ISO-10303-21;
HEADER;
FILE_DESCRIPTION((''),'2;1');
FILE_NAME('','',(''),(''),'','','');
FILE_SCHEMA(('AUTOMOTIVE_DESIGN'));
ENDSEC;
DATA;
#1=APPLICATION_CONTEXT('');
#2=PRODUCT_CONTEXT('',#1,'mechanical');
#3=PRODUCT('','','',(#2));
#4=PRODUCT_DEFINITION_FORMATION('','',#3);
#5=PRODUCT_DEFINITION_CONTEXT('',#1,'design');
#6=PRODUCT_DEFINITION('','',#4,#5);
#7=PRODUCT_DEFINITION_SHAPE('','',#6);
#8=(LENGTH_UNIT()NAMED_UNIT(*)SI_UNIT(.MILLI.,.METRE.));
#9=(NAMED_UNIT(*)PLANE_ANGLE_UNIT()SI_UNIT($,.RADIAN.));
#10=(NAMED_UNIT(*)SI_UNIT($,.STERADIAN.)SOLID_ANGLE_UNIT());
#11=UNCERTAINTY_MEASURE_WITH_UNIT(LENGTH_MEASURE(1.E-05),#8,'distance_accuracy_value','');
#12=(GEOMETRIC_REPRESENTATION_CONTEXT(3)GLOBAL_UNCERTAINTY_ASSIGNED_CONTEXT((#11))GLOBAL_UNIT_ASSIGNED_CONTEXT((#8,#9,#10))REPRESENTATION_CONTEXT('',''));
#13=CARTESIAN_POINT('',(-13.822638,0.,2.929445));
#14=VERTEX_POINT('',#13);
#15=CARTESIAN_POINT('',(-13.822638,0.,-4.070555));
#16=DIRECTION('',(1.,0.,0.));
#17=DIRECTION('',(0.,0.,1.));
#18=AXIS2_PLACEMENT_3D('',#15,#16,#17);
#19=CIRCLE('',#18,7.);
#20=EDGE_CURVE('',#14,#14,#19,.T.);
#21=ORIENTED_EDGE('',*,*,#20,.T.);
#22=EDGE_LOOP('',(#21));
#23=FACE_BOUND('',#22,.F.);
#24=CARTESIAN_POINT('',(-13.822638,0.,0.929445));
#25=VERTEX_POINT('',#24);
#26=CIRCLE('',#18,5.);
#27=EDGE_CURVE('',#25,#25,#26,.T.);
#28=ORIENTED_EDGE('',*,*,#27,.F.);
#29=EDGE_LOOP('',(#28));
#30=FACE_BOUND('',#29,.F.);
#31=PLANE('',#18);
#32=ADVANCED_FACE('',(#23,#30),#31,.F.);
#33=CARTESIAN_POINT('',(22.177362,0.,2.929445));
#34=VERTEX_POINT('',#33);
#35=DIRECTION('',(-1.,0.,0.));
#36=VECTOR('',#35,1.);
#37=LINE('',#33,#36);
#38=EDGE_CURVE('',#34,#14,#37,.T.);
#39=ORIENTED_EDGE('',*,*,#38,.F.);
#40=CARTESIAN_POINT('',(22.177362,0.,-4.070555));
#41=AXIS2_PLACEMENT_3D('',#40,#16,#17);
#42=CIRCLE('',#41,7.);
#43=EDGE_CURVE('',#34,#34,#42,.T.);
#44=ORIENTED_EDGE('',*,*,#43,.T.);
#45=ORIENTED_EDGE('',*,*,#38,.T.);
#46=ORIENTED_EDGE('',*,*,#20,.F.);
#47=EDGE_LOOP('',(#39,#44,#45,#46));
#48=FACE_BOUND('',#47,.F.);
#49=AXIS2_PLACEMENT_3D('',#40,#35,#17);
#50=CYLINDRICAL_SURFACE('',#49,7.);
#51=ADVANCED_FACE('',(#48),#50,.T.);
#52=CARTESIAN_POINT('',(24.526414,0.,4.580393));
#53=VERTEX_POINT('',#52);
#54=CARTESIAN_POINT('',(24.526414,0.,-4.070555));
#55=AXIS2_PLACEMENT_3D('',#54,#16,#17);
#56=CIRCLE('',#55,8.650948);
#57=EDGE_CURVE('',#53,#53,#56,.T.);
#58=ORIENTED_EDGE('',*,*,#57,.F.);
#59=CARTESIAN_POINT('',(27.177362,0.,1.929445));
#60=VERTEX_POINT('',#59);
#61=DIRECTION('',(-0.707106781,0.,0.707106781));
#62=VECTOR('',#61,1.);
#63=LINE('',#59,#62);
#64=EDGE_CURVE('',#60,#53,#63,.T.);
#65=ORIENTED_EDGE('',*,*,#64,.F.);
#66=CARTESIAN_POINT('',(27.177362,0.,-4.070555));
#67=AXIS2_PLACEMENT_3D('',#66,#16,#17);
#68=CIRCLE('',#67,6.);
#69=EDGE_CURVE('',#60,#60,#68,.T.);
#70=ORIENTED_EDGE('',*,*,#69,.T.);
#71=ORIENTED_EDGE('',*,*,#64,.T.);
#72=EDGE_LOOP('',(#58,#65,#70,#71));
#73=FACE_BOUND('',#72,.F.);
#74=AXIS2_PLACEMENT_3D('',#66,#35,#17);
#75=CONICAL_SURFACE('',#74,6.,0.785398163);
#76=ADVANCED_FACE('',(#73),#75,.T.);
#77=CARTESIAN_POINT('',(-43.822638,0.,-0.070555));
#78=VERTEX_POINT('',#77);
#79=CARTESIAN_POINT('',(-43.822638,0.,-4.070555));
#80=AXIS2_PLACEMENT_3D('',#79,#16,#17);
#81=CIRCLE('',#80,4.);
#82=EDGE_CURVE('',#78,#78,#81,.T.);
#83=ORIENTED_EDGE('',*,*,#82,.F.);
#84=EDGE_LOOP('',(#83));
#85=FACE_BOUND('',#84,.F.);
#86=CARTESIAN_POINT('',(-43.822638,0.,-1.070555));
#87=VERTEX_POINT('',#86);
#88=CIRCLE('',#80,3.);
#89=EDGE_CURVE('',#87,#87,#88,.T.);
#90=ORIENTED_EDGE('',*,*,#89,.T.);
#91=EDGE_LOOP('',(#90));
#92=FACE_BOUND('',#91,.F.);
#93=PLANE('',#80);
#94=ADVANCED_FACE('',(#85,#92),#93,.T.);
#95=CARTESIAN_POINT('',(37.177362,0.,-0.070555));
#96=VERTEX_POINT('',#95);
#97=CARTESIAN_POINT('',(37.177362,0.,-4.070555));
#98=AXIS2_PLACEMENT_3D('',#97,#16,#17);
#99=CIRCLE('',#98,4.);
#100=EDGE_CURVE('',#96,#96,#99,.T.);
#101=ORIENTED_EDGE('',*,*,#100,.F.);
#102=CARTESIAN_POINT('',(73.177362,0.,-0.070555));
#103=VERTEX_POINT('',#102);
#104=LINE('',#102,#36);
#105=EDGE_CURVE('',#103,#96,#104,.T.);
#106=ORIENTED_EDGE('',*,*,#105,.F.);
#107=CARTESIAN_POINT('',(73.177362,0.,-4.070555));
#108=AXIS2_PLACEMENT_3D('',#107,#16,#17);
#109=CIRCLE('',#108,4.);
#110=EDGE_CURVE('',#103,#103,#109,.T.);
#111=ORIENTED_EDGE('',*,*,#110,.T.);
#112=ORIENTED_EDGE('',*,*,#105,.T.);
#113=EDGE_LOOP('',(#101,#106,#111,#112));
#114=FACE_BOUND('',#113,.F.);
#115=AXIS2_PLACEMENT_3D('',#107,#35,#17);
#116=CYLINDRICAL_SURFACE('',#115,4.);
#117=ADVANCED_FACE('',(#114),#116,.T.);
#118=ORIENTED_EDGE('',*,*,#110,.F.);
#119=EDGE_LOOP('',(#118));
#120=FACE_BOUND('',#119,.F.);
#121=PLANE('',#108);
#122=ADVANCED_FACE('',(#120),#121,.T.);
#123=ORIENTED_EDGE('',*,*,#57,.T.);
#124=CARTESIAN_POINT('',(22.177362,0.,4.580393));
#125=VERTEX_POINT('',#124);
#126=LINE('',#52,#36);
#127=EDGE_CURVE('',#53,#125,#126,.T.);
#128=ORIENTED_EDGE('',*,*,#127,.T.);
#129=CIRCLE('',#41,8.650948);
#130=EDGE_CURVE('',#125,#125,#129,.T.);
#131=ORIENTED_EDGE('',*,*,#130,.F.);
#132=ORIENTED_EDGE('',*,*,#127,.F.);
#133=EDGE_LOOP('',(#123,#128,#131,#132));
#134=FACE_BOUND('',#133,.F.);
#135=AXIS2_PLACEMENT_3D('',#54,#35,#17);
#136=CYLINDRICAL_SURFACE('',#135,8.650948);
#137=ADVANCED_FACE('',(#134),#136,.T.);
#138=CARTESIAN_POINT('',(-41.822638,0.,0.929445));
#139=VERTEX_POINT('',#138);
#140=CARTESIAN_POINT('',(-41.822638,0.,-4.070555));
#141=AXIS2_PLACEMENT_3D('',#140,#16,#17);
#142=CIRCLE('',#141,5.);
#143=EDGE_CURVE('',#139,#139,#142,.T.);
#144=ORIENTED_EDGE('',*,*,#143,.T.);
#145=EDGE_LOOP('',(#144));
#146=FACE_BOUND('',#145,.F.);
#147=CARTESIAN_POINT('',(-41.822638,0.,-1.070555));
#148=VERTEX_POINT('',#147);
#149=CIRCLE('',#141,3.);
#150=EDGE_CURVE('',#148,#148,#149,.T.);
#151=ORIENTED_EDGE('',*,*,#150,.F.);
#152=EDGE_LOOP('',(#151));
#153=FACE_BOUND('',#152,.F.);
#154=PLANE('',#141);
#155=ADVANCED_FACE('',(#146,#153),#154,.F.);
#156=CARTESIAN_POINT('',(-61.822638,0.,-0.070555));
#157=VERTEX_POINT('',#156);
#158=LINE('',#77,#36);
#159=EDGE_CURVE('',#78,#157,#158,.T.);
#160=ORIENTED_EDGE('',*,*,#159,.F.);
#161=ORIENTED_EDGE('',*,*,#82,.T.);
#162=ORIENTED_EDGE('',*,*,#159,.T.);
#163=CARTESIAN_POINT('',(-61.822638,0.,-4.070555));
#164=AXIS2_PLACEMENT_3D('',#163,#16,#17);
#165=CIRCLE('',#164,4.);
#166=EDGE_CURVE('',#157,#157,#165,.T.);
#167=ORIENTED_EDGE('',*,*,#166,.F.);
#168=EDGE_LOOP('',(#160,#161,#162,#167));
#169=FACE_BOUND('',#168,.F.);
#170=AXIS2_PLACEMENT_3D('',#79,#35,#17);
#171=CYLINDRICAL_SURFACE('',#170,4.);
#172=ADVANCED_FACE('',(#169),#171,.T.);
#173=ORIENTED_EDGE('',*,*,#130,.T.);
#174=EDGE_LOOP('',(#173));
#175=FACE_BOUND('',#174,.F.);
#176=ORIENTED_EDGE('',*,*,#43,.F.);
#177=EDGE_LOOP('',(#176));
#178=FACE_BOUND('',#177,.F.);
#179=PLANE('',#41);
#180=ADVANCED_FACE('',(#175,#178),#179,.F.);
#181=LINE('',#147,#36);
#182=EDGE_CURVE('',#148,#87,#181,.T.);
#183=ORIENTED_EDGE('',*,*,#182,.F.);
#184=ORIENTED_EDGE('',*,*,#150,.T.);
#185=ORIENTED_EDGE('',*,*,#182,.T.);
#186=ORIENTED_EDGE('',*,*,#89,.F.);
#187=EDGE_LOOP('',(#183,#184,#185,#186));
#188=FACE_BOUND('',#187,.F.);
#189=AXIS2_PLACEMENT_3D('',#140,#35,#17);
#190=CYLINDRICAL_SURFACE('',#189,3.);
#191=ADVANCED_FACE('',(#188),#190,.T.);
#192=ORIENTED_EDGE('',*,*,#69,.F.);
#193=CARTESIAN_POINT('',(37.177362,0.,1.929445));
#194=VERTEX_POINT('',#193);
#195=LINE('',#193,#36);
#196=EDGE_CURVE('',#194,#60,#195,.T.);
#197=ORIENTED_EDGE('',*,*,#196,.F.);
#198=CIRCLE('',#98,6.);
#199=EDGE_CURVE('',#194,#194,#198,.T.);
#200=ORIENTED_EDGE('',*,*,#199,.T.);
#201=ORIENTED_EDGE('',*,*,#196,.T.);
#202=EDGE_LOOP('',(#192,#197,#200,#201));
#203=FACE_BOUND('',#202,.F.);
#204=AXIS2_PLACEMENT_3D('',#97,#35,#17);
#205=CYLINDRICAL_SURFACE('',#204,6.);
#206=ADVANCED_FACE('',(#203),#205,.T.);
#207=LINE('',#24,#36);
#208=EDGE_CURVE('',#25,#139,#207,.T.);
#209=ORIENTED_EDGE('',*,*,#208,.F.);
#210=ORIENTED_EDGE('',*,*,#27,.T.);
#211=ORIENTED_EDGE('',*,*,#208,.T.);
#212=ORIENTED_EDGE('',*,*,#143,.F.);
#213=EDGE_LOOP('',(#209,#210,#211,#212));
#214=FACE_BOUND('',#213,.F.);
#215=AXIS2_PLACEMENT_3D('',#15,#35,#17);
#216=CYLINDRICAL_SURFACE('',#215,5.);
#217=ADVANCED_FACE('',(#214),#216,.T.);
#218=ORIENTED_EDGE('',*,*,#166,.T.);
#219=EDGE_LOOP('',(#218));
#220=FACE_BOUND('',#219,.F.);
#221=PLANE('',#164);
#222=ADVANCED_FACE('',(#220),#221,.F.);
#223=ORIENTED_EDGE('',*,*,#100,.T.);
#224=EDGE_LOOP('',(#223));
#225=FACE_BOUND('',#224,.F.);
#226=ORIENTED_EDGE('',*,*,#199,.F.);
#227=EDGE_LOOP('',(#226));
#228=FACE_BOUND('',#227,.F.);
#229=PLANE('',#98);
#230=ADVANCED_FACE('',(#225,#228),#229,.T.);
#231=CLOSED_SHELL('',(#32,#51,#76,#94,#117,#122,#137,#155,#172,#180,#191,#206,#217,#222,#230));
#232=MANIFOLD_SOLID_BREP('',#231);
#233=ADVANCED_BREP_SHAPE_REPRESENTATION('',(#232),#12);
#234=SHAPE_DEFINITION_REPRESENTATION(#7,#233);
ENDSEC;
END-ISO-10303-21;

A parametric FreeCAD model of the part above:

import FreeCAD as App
import Part
import Sketcher

V = App.Vector
Q = App.Units.Quantity

doc = App.newDocument("Part")
body = doc.addObject("PartDesign::Body", "Body")

# Sketch on XZ plane
sketch1 = body.newObject("Sketcher::SketchObject", "Sketch")
sketch1.AttachmentSupport = (doc.getObject("XZ_Plane"), [""])
sketch1.MapMode = "FlatFace"
sketch1.addGeometry([
    Part.LineSegment(V(-61.8, -4.1, 0), V(73.2, -4.1, 0)),  # 0
    Part.LineSegment(V(73.2, -4.1, 0), V(73.2, -0.1, 0)),  # 1
    Part.LineSegment(V(73.2, -0.1, 0), V(37.2, -0.1, 0)),  # 2
    Part.LineSegment(V(37.2, -0.1, 0), V(37.2, 1.9, 0)),  # 3
    Part.LineSegment(V(37.2, 1.9, 0), V(27.2, 1.9, 0)),  # 4
    Part.LineSegment(V(27.2, 1.9, 0), V(24.5, 4.6, 0)),  # 5
    Part.LineSegment(V(24.5, 4.6, 0), V(22.2, 4.6, 0)),  # 6
    Part.LineSegment(V(22.2, 4.6, 0), V(22.2, 2.9, 0)),  # 7
    Part.LineSegment(V(22.2, 2.9, 0), V(-13.8, 2.9, 0)),  # 8
    Part.LineSegment(V(-13.8, 2.9, 0), V(-13.8, 0.9, 0)),  # 9
    Part.LineSegment(V(-13.8, 0.9, 0), V(-41.8, 0.9, 0)),  # 10
    Part.LineSegment(V(-41.8, 0.9, 0), V(-41.8, -1.1, 0)),  # 11
    Part.LineSegment(V(-41.8, -1.1, 0), V(-43.8, -1.1, 0)),  # 12
    Part.LineSegment(V(-43.8, -1.1, 0), V(-43.8, -0.1, 0)),  # 13
    Part.LineSegment(V(-43.8, -0.1, 0), V(-61.8, -0.1, 0)),  # 14
    Part.LineSegment(V(-61.8, -0.1, 0), V(-61.8, -4.1, 0)),  # 15
], False)
sketch1.addGeometry(Part.LineSegment(V(-61.8, -4.1, 0), V(73.2, -4.1, 0)), True)  # axis
sketch1.addConstraint([
    Sketcher.Constraint("Coincident", 0, 2, 1, 1),
    Sketcher.Constraint("Coincident", 1, 2, 2, 1),
    Sketcher.Constraint("Coincident", 2, 2, 3, 1),
    Sketcher.Constraint("Coincident", 3, 2, 4, 1),
    Sketcher.Constraint("Coincident", 4, 2, 5, 1),
    Sketcher.Constraint("Coincident", 5, 2, 6, 1),
    Sketcher.Constraint("Coincident", 6, 2, 7, 1),
    Sketcher.Constraint("Coincident", 7, 2, 8, 1),
    Sketcher.Constraint("Coincident", 8, 2, 9, 1),
    Sketcher.Constraint("Coincident", 9, 2, 10, 1),
    Sketcher.Constraint("Coincident", 10, 2, 11, 1),
    Sketcher.Constraint("Coincident", 11, 2, 12, 1),
    Sketcher.Constraint("Coincident", 12, 2, 13, 1),
    Sketcher.Constraint("Coincident", 13, 2, 14, 1),
    Sketcher.Constraint("Coincident", 14, 2, 15, 1),
    Sketcher.Constraint("Coincident", 15, 2, 0, 1),
    Sketcher.Constraint("Horizontal", 0),
    Sketcher.Constraint("Vertical", 1),
    Sketcher.Constraint("Horizontal", 2),
    Sketcher.Constraint("Vertical", 3),
    Sketcher.Constraint("Horizontal", 4),
    Sketcher.Constraint("Horizontal", 6),
    Sketcher.Constraint("Vertical", 7),
    Sketcher.Constraint("Horizontal", 8),
    Sketcher.Constraint("Vertical", 9),
    Sketcher.Constraint("Horizontal", 10),
    Sketcher.Constraint("Vertical", 11),
    Sketcher.Constraint("Horizontal", 12),
    Sketcher.Constraint("Vertical", 13),
    Sketcher.Constraint("Horizontal", 14),
    Sketcher.Constraint("Vertical", 15),
    Sketcher.Constraint("Horizontal", 16),
    Sketcher.Constraint("Coincident", 16, 1, 15, 2),
    Sketcher.Constraint("Horizontal", 2, 2, 13, 2),
    Sketcher.Constraint("Vertical", 1, 2, 16, 2),
    Sketcher.Constraint("Equal", 2, 8),
    Sketcher.Constraint("Equal", 12, 3),
    Sketcher.Constraint("Equal", 3, 9),
    Sketcher.Constraint("Equal", 9, 11),
    Sketcher.Constraint("DistanceX", 0, 1, 0, 2, Q("135 mm")),
    Sketcher.Constraint("DistanceX", 2, 2, 2, 1, Q("36 mm")),
    Sketcher.Constraint("DistanceX", 4, 2, 4, 1, Q("10 mm")),
    Sketcher.Constraint("DistanceX", 10, 2, 10, 1, Q("28 mm")),
    Sketcher.Constraint("DistanceX", 12, 2, 12, 1, Q("2 mm")),
    Sketcher.Constraint("DistanceX", 14, 2, 14, 1, Q("18 mm")),
    Sketcher.Constraint("DistanceY", 1, 1, 1, 2, Q("4 mm")),
    Sketcher.Constraint("DistanceY", 13, 1, 13, 2, Q("1 mm")),
    Sketcher.Constraint("Angle", 5, Q("135 deg")),
    Sketcher.Constraint("DistanceY", 7, 2, 7, 1, Q("1.650948 mm")),
    Sketcher.Constraint("DistanceX", -1, 1, 4, 2, Q("27.177362 mm")),
    Sketcher.Constraint("DistanceY", 0, 2, -1, 1, Q("4.070555 mm")),
])
revolution = body.newObject("PartDesign::Revolution", "Revolution")
revolution.Profile = sketch1
revolution.ReferenceAxis = (sketch1, ["Axis0"])
revolution.Angle = 360

doc.recompute()
